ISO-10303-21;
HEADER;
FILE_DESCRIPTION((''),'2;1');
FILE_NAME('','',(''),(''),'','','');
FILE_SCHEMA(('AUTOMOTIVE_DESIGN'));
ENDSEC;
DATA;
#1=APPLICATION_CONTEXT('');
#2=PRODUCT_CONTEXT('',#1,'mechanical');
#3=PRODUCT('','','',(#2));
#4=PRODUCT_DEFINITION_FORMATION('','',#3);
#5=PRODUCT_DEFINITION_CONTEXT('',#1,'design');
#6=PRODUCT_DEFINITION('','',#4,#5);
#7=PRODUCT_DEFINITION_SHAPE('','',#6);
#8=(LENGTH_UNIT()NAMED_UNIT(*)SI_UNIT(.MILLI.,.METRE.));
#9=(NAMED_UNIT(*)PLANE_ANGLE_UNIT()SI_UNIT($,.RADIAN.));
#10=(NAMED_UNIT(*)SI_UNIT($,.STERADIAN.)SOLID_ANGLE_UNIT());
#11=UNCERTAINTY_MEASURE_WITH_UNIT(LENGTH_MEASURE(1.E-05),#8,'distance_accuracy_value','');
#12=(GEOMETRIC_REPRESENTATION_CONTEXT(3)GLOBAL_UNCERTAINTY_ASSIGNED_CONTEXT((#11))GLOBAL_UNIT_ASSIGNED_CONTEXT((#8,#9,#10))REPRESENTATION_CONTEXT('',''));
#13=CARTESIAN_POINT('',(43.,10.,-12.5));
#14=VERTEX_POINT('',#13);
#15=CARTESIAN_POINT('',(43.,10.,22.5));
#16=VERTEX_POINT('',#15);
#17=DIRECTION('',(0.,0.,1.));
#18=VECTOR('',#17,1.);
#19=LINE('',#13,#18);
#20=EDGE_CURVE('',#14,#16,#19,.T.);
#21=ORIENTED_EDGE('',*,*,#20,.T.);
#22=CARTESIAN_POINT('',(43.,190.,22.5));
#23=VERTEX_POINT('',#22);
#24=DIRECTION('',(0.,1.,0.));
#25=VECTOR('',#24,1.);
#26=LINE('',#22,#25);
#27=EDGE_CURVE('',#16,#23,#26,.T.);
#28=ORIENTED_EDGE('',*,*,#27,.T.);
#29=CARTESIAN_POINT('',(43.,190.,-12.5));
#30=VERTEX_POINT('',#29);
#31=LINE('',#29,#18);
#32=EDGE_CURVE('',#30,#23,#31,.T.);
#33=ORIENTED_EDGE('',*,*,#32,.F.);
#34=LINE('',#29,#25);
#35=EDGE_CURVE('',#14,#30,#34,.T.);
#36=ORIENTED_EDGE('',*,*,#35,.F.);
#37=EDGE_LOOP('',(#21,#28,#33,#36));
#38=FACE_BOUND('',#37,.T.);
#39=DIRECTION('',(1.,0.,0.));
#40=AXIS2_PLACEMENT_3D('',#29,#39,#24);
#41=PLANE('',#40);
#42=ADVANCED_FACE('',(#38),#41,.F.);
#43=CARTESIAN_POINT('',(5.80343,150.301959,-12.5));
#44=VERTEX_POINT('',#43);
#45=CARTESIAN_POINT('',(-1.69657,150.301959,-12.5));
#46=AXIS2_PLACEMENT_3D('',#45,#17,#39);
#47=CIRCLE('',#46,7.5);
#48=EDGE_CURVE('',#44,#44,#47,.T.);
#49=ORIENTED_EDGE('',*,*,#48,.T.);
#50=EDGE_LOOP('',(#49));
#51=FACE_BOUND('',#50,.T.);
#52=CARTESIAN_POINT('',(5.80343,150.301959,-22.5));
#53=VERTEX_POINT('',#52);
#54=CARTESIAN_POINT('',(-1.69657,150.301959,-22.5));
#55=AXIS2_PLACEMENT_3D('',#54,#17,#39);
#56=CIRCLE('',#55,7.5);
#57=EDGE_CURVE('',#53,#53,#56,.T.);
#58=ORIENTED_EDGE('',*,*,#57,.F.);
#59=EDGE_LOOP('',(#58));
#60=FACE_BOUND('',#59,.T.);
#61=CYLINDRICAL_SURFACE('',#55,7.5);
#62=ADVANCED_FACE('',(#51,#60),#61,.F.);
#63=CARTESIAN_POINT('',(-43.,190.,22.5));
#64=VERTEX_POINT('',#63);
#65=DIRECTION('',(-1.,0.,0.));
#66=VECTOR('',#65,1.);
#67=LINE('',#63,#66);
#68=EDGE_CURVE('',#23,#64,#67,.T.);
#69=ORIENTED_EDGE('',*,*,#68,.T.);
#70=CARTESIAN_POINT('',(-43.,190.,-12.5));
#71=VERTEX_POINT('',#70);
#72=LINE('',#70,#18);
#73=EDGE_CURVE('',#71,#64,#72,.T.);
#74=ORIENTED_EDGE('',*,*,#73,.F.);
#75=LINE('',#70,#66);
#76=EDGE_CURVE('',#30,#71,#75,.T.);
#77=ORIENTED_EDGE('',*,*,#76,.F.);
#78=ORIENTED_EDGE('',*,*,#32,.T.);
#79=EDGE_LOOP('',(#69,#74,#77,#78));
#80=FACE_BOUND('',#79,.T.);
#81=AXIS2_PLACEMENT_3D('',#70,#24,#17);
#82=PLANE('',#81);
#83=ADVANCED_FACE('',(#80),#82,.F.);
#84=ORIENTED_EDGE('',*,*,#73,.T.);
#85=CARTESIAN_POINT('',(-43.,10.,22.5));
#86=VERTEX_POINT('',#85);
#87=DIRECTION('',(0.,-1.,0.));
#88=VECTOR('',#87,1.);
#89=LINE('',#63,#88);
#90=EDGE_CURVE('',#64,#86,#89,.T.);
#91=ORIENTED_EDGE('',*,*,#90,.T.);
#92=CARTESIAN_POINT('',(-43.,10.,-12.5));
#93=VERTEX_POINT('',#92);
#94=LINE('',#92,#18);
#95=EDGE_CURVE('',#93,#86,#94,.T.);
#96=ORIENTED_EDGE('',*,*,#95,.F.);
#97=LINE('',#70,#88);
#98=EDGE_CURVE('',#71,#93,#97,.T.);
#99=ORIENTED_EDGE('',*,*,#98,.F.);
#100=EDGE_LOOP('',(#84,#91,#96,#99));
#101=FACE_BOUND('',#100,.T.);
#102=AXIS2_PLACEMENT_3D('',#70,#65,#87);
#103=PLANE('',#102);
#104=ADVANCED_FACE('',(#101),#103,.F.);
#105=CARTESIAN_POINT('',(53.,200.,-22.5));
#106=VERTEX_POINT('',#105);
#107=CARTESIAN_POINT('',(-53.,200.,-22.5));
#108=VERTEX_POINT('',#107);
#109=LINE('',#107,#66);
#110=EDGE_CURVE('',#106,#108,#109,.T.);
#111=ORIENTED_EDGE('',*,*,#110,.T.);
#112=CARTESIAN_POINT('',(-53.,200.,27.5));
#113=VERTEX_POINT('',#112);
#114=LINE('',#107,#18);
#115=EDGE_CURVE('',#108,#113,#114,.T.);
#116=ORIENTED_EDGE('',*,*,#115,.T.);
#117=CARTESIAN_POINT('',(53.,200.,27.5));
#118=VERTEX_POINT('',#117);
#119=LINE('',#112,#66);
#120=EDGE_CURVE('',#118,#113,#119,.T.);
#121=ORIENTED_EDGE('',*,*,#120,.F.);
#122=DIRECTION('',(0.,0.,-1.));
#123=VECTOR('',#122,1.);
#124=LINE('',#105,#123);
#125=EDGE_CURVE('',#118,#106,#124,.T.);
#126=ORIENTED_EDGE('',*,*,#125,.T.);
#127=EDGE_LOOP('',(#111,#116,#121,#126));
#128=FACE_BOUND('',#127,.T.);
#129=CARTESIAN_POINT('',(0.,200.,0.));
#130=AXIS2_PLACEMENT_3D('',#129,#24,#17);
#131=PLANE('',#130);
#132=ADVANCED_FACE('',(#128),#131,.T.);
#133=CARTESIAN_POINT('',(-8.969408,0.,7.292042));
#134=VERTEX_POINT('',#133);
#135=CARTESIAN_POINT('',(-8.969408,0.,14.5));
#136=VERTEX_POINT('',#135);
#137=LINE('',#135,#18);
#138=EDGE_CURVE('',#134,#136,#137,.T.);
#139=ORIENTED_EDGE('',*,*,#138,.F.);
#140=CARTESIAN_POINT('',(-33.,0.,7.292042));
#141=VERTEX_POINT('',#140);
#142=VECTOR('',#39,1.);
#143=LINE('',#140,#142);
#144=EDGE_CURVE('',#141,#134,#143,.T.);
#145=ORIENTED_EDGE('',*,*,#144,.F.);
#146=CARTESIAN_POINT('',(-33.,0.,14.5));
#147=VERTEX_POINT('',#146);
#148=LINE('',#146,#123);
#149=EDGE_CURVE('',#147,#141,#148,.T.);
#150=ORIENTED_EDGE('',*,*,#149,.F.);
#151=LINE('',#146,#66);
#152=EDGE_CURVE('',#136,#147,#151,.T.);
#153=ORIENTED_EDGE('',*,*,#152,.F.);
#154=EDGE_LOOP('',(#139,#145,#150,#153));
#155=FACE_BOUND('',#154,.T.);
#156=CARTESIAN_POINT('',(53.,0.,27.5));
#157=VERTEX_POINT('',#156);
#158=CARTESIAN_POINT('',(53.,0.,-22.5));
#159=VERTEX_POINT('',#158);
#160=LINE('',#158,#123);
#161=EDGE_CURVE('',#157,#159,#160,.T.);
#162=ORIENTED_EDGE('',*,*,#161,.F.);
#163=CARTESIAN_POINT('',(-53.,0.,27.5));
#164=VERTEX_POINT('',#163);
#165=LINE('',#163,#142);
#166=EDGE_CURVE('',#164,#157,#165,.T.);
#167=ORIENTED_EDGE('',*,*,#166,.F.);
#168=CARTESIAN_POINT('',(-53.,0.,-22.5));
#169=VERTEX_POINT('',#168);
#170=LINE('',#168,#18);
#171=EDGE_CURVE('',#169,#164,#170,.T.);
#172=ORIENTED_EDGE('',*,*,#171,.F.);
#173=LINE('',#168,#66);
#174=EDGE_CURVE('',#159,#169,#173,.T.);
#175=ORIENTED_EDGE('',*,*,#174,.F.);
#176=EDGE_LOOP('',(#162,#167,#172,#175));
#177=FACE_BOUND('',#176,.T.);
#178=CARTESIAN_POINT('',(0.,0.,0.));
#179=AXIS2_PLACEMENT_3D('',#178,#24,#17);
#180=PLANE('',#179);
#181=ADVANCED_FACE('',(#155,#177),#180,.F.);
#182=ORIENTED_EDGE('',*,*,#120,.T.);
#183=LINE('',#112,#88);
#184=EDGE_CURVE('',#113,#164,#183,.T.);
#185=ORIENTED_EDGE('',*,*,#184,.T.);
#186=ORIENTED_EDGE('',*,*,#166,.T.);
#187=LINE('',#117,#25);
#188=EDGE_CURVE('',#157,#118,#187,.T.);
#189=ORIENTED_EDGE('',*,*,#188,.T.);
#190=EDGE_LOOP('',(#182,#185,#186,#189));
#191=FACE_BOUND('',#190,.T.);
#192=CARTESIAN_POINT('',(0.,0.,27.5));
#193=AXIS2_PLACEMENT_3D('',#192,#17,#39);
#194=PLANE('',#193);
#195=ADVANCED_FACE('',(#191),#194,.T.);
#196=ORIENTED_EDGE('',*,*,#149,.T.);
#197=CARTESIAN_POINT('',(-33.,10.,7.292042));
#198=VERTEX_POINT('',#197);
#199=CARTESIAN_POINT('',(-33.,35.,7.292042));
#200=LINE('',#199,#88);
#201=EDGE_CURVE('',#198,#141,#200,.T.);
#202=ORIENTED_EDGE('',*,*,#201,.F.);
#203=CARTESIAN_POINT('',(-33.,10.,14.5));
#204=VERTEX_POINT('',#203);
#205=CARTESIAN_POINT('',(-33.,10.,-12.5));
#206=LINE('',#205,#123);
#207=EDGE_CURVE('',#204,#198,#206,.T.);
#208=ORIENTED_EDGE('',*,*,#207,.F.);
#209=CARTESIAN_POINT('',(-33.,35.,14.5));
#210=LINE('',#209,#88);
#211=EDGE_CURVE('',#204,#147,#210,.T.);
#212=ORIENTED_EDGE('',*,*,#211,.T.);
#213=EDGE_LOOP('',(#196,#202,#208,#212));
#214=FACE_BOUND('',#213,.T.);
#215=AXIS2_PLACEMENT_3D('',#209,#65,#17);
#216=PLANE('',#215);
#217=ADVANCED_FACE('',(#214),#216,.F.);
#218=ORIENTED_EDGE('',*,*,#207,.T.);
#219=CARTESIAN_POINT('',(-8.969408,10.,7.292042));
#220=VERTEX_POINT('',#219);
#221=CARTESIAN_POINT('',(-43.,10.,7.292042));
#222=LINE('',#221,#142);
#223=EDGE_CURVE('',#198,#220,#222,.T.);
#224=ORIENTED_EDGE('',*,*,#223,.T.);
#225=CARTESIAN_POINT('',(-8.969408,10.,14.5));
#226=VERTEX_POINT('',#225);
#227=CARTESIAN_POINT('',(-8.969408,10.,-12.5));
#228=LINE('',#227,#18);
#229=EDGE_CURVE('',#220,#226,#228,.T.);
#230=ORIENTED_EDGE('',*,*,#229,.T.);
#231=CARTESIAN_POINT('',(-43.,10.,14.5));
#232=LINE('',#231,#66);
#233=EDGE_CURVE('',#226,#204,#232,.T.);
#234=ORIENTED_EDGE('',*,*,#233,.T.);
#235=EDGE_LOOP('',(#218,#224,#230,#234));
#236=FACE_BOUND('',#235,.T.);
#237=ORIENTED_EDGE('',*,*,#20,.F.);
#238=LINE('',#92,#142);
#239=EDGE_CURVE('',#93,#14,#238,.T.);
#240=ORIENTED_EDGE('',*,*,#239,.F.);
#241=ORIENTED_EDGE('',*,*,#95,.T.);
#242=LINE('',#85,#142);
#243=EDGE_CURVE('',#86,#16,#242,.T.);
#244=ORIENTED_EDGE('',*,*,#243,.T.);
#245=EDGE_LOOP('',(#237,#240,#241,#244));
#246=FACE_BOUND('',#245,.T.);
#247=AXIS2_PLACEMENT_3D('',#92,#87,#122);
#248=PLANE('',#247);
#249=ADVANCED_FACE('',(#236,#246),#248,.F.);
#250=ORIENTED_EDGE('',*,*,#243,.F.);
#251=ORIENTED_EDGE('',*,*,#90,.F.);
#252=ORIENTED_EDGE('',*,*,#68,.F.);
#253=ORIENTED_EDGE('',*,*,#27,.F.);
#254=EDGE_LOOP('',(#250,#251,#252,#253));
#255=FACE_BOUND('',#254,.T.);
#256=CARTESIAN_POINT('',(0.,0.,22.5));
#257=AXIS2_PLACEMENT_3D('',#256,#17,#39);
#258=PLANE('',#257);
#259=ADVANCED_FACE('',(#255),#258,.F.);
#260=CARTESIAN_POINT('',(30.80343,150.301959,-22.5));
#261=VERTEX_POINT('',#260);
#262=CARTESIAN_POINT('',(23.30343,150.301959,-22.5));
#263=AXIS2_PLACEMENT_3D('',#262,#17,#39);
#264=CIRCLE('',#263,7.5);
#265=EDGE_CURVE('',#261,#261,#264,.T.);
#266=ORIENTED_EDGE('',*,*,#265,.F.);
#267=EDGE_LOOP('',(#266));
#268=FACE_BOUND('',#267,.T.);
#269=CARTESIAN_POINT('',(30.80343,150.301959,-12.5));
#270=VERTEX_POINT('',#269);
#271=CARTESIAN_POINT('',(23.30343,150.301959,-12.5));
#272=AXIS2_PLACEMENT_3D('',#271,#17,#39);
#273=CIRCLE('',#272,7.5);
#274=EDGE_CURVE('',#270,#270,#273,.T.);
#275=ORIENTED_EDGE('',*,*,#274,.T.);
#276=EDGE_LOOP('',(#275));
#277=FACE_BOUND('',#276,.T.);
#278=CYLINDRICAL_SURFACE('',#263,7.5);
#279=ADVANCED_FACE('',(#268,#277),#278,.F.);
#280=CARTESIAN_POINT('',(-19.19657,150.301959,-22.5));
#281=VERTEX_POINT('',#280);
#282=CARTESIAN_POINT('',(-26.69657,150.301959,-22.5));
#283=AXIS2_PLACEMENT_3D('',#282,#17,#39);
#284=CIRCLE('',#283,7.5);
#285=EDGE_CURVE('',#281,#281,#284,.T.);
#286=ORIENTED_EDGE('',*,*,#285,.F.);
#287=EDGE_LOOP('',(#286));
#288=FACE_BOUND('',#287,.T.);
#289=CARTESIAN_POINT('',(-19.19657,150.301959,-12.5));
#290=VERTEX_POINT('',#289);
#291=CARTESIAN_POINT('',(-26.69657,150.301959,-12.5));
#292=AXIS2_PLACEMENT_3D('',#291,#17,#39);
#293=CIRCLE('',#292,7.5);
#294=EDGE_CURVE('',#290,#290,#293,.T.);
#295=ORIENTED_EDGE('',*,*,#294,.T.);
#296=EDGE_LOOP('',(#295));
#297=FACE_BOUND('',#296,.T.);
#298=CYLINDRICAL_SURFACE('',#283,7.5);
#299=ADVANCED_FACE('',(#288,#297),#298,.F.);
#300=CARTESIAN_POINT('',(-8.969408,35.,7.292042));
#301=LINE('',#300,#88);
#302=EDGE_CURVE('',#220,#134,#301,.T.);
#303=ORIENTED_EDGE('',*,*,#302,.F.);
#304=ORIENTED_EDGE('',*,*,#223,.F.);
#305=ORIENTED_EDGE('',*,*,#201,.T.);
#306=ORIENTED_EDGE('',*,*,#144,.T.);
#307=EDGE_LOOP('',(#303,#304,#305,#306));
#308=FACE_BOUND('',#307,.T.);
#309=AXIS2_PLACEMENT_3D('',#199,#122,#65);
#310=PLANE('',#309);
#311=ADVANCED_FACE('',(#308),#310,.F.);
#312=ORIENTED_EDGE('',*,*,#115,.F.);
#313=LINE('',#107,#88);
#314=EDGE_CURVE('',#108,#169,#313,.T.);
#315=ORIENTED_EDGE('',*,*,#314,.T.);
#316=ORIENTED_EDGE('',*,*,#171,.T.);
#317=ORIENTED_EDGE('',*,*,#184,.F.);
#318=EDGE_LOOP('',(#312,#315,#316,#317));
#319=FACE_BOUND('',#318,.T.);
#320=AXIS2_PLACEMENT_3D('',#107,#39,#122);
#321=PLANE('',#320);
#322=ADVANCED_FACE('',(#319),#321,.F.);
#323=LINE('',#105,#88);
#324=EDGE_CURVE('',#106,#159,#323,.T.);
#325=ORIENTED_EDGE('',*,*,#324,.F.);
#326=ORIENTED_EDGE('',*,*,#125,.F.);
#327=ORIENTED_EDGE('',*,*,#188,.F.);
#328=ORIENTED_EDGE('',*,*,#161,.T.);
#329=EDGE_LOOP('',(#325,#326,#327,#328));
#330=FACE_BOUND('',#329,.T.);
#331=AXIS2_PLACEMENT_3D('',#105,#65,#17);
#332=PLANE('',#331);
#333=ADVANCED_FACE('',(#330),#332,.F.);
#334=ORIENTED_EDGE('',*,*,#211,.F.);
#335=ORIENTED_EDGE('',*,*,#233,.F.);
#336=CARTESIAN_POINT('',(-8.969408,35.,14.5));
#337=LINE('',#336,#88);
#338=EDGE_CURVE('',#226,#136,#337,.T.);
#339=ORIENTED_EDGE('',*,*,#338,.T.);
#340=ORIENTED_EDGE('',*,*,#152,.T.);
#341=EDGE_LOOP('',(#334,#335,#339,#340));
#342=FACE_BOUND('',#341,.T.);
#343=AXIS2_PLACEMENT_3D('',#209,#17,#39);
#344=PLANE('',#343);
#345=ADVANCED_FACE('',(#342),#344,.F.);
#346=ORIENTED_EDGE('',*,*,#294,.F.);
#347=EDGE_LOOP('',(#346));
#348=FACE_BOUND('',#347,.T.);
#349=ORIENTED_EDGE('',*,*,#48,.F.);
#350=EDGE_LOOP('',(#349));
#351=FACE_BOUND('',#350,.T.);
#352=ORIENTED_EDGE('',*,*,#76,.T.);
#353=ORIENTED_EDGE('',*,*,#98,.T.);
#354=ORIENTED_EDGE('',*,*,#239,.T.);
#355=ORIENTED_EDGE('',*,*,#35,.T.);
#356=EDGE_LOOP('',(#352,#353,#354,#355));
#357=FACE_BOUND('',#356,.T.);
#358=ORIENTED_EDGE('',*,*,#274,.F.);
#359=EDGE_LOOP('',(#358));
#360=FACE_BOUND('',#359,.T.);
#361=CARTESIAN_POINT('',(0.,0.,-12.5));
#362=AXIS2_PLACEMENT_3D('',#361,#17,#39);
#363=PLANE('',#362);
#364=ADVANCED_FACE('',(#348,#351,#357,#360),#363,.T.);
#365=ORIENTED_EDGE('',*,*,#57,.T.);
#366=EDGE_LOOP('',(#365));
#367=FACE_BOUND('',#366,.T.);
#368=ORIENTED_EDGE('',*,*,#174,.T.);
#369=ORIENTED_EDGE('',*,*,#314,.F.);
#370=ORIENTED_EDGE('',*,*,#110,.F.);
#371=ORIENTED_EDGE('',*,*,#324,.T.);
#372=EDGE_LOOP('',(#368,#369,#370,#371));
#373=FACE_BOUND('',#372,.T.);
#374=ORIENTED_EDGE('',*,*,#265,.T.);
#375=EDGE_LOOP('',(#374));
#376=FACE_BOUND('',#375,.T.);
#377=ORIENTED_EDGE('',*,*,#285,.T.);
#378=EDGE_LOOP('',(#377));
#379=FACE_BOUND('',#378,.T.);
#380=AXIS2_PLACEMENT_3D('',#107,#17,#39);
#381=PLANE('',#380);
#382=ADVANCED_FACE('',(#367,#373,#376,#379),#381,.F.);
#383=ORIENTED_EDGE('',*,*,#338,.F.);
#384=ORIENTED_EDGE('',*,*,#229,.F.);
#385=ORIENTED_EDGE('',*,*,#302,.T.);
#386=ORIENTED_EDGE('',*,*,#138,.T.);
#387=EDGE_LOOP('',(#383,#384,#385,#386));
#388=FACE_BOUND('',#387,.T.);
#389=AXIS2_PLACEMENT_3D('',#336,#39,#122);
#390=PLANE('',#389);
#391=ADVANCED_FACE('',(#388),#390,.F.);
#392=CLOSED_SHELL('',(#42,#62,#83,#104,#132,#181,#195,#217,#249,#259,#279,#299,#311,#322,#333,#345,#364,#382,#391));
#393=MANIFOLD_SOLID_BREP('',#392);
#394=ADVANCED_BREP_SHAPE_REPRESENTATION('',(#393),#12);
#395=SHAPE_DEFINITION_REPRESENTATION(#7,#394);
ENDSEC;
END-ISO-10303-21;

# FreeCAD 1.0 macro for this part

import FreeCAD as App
import Part
import Sketcher
Q = App.Units.Quantity


def add_polygon(sketch, points):
    """Adds a closed chain of lines whose ends are joined by coincident constraints."""
    first, n = sketch.GeometryCount, len(points)
    for a, b in zip(points, points[1:] + points[:1]):
        sketch.addGeometry(Part.LineSegment(App.Vector(*a, 0), App.Vector(*b, 0)), False)
    for i in range(n):
        sketch.addConstraint(Sketcher.Constraint("Coincident", first + i, 2, first + (i + 1) % n, 1))

doc = App.newDocument("Part")
body = doc.addObject("PartDesign::Body", "Body")

# Sketch on XZ plane
sketch1 = body.newObject("Sketcher::SketchObject", "Sketch")
sketch1.AttachmentSupport = (doc.getObject("XZ_Plane"), [""])
sketch1.MapMode = "FlatFace"
add_polygon(sketch1, [(-53, -22), (-53, 22), (53, 22), (53, -22)])  # lines 0-3
sketch1.addConstraint(Sketcher.Constraint("Vertical", 0))
sketch1.addConstraint(Sketcher.Constraint("Horizontal", 1))
sketch1.addConstraint(Sketcher.Constraint("Vertical", 2))
sketch1.addConstraint(Sketcher.Constraint("Horizontal", 3))
sketch1.addConstraint(Sketcher.Constraint("Symmetric", 0, 2, 2, 2, -1, 1))
sketch1.addConstraint(Sketcher.Constraint("DistanceX", 1, 1, 1, 2, Q("106 mm")))
sketch1.addConstraint(Sketcher.Constraint("DistanceY", 0, 1, 0, 2, Q("45 mm")))
pad1 = body.newObject("PartDesign::Pad", "Pad")
pad1.Profile = sketch1
pad1.Length = 200
pad1.Reversed = True

# Sketch on XY plane
sketch2 = body.newObject("Sketcher::SketchObject", "Sketch001")
sketch2.AttachmentSupport = (doc.getObject("XY_Plane"), [""])
sketch2.MapMode = "FlatFace"
sketch2.AttachmentOffset = App.Placement(App.Vector(0, 0, 22.5), App.Rotation())
add_polygon(sketch2, [(-43, 190), (-43, 10), (43, 10), (43, 190)])  # lines 0-3
sketch2.addConstraint(Sketcher.Constraint("Vertical", 0))
sketch2.addConstraint(Sketcher.Constraint("Horizontal", 1))
sketch2.addConstraint(Sketcher.Constraint("Vertical", 2))
sketch2.addConstraint(Sketcher.Constraint("Horizontal", 3))
sketch2.addConstraint(Sketcher.Constraint("DistanceX", 1, 1, 1, 2, Q("86 mm")))
sketch2.addConstraint(Sketcher.Constraint("DistanceY", 0, 2, 0, 1, Q("180 mm")))
sketch2.addConstraint(Sketcher.Constraint("DistanceX", 0, 2, -1, 1, Q("43 mm")))
sketch2.addConstraint(Sketcher.Constraint("DistanceY", -1, 1, 0, 2, Q("10 mm")))
pocket1 = body.newObject("PartDesign::Pocket", "Pocket")
pocket1.Profile = sketch2
pocket1.Length = 35

# Sketch on XY plane
sketch3 = body.newObject("Sketcher::SketchObject", "Sketch002")
sketch3.AttachmentSupport = (doc.getObject("XY_Plane"), [""])
sketch3.MapMode = "FlatFace"
sketch3.AttachmentOffset = App.Placement(App.Vector(0, 0, -12.5), App.Rotation())
sketch3.addGeometry(Part.Circle(App.Vector(-27, 150, 0), App.Vector(0, 0, 1), 8), False)
sketch3.addGeometry(Part.Circle(App.Vector(-2, 150, 0), App.Vector(0, 0, 1), 8), False)
sketch3.addGeometry(Part.Circle(App.Vector(23, 150, 0), App.Vector(0, 0, 1), 8), False)
sketch3.addConstraint(Sketcher.Constraint("Equal", 0, 1))
sketch3.addConstraint(Sketcher.Constraint("Equal", 1, 2))
sketch3.addConstraint(Sketcher.Constraint("Horizontal", 0, 3, 1, 3))
sketch3.addConstraint(Sketcher.Constraint("Horizontal", 1, 3, 2, 3))
sketch3.addConstraint(Sketcher.Constraint("Diameter", 0, Q("15 mm")))
sketch3.addConstraint(Sketcher.Constraint("DistanceX", 0, 3, 1, 3, Q("25 mm")))
sketch3.addConstraint(Sketcher.Constraint("DistanceX", 1, 3, 2, 3, Q("25 mm")))
sketch3.addConstraint(Sketcher.Constraint("DistanceX", 0, 3, -1, 1, Q("26.69657 mm")))
sketch3.addConstraint(Sketcher.Constraint("DistanceY", -1, 1, 0, 3, Q("150.301959 mm")))
pocket2 = body.newObject("PartDesign::Pocket", "Pocket001")
pocket2.Profile = sketch3
pocket2.Type = "ThroughAll"

# Sketch on XZ plane
sketch4 = body.newObject("Sketcher::SketchObject", "Sketch003")
sketch4.AttachmentSupport = (doc.getObject("XZ_Plane"), [""])
sketch4.MapMode = "FlatFace"
add_polygon(sketch4, [(-33, 15), (-33, 7), (-9, 7), (-9, 15)])  # lines 0-3
sketch4.addConstraint(Sketcher.Constraint("Vertical", 0))
sketch4.addConstraint(Sketcher.Constraint("Horizontal", 1))
sketch4.addConstraint(Sketcher.Constraint("Vertical", 2))
sketch4.addConstraint(Sketcher.Constraint("Horizontal", 3))
sketch4.addConstraint(Sketcher.Constraint("DistanceX", 0, 2, -1, 1, Q("33 mm")))
sketch4.addConstraint(Sketcher.Constraint("DistanceY", -1, 1, 2, 2, Q("14.5 mm")))
sketch4.addConstraint(Sketcher.Constraint("DistanceY", 0, 2, 0, 1, Q("7.207958 mm")))
sketch4.addConstraint(Sketcher.Constraint("DistanceX", 1, 1, 1, 2, Q("24.030592 mm")))
pocket3 = body.newObject("PartDesign::Pocket", "Pocket002")
pocket3.Profile = sketch4
pocket3.Length = 35

# Sketch on XY plane
sketch5 = body.newObject("Sketcher::SketchObject", "Sketch004")
sketch5.AttachmentSupport = (doc.getObject("XY_Plane"), [""])
sketch5.MapMode = "FlatFace"
sketch5.AttachmentOffset = App.Placement(App.Vector(0, 0, 22.5), App.Rotation())
add_polygon(sketch5, [(-53, 200), (-53, 0), (53, 0), (53, 200)])  # lines 0-3
sketch5.addConstraint(Sketcher.Constraint("Vertical", 0))
sketch5.addConstraint(Sketcher.Constraint("Horizontal", 1))
sketch5.addConstraint(Sketcher.Constraint("Vertical", 2))
sketch5.addConstraint(Sketcher.Constraint("Horizontal", 3))
sketch5.addConstraint(Sketcher.Constraint("Symmetric", 0, 2, 1, 2, -1, 1))
sketch5.addConstraint(Sketcher.Constraint("DistanceX", 1, 1, 1, 2, Q("106 mm")))
sketch5.addConstraint(Sketcher.Constraint("DistanceY", 0, 2, 0, 1, Q("200 mm")))
pad2 = body.newObject("PartDesign::Pad", "Pad001")
pad2.Profile = sketch5
pad2.Length = 5

doc.recompute()
